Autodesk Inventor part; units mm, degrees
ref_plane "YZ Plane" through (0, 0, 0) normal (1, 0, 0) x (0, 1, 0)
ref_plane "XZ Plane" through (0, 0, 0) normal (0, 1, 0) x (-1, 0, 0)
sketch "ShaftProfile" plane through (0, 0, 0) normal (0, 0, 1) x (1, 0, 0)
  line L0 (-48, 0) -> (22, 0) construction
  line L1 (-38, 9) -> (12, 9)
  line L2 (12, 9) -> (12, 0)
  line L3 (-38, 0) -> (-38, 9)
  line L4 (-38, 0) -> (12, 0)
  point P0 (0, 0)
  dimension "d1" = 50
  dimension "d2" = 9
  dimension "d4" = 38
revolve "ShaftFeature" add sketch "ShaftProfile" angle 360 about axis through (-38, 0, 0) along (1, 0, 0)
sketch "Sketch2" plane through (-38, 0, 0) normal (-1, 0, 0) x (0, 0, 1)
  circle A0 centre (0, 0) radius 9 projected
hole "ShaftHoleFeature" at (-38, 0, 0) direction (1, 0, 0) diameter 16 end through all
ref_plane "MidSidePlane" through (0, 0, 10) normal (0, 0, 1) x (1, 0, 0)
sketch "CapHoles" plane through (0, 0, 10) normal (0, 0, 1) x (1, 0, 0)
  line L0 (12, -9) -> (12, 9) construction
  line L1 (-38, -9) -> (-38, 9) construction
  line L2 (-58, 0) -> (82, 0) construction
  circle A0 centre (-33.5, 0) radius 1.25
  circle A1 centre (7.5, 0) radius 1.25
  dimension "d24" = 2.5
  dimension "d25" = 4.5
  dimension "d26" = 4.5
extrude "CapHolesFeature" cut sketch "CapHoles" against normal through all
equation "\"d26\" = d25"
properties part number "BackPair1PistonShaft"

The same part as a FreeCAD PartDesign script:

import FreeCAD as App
import Part
import Sketcher

V = App.Vector
Q = App.Units.Quantity


def add_polygon(sketch, points):
    """Adds a closed chain of lines whose ends are joined by coincident constraints."""
    first, n = sketch.GeometryCount, len(points)
    for a, b in zip(points, points[1:] + points[:1]):
        sketch.addGeometry(Part.LineSegment(App.Vector(*a, 0), App.Vector(*b, 0)), False)
    for i in range(n):
        sketch.addConstraint(Sketcher.Constraint("Coincident", first + i, 2, first + (i + 1) % n, 1))

doc = App.newDocument("Part")
body = doc.addObject("PartDesign::Body", "Body")

# Sketch on XY plane
sketch1 = body.newObject("Sketcher::SketchObject", "Sketch")
sketch1.AttachmentSupport = (doc.getObject("XY_Plane"), [""])
sketch1.MapMode = "FlatFace"
add_polygon(sketch1, [(12, 9), (-38, 9), (-38, 0), (12, 0)])  # lines 0-3
sketch1.addConstraint([
    Sketcher.Constraint("Horizontal", 0),
    Sketcher.Constraint("Vertical", 1),
    Sketcher.Constraint("Horizontal", 2),
    Sketcher.Constraint("Vertical", 3),
    Sketcher.Constraint("PointOnObject", 1, 2, -1),
    Sketcher.Constraint("DistanceX", 0, 2, 0, 1, Q("50 mm")),
    Sketcher.Constraint("DistanceY", 1, 2, 1, 1, Q("9 mm")),
    Sketcher.Constraint("DistanceX", 0, 2, -1, 1, Q("38 mm")),
])
revolution = body.newObject("PartDesign::Revolution", "Revolution")
revolution.Profile = sketch1
revolution.ReferenceAxis = (sketch1, ["H_Axis"])
revolution.Angle = 360

# Sketch on YZ plane
sketch2 = body.newObject("Sketcher::SketchObject", "Sketch001")
sketch2.AttachmentSupport = (doc.getObject("YZ_Plane"), [""])
sketch2.MapMode = "FlatFace"
sketch2.AttachmentOffset = App.Placement(V(0, 0, -38), App.Rotation())
sketch2.addGeometry(Part.Circle(V(0, 0, 0), V(0, 0, 1), 8), False)
sketch2.addConstraint([
    Sketcher.Constraint("Coincident", 0, 3, -1, 1),
    Sketcher.Constraint("Diameter", 0, Q("16 mm")),
])
doc.recompute()
hole = body.newObject("PartDesign::Hole", "Hole")
hole.Profile = sketch2
hole.ThreadType = "None"
hole.Diameter = 16
hole.DepthType = "ThroughAll"
hole.Reversed = True

# Sketch on XY plane
sketch3 = body.newObject("Sketcher::SketchObject", "Sketch002")
sketch3.AttachmentSupport = (doc.getObject("XY_Plane"), [""])
sketch3.MapMode = "FlatFace"
sketch3.AttachmentOffset = App.Placement(V(0, 0, 10), App.Rotation())
sketch3.addGeometry([
    Part.Circle(V(-33.5, 0, 0), V(0, 0, 1), 1.2),
    Part.Circle(V(7.5, 0, 0), V(0, 0, 1), 1.2),
], False)
sketch3.addConstraint([
    Sketcher.Constraint("Equal", 0, 1),
    Sketcher.Constraint("PointOnObject", 0, 3, -1),
    Sketcher.Constraint("PointOnObject", 1, 3, -1),
    Sketcher.Constraint("Diameter", 0, Q("2.5 mm")),
    Sketcher.Constraint("DistanceX", 0, 3, 1, 3, Q("41 mm")),
    Sketcher.Constraint("DistanceX", 0, 3, -1, 1, Q("33.5 mm")),
])
pocket1 = body.newObject("PartDesign::Pocket", "Pocket")
pocket1.Profile = sketch3
pocket1.Type = "ThroughAll"

doc.recompute()
